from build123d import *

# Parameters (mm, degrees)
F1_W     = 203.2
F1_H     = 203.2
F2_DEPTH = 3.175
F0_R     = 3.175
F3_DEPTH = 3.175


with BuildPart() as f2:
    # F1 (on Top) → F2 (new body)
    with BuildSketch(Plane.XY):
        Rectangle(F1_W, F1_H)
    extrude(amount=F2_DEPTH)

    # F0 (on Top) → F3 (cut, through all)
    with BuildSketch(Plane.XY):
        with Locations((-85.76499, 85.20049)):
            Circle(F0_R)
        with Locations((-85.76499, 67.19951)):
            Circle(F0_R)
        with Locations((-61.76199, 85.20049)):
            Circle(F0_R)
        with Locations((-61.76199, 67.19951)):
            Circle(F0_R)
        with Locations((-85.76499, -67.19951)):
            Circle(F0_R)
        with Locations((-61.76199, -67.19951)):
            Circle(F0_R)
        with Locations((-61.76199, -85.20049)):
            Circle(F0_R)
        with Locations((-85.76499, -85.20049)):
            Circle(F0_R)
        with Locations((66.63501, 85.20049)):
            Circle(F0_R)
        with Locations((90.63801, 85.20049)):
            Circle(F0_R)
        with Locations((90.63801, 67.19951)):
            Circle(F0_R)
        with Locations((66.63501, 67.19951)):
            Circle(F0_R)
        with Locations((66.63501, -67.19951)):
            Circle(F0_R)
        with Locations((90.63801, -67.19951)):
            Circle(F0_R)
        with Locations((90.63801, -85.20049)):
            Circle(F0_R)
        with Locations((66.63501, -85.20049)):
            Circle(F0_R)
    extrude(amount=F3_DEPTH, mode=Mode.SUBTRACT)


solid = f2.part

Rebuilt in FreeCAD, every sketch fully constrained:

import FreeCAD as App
import Part
import Sketcher
from FreeCAD import Vector
Q = App.Units.Quantity


def add_polygon(sketch, points):
    """Adds a closed chain of lines whose ends are joined by coincident constraints."""
    first, n = sketch.GeometryCount, len(points)
    for a, b in zip(points, points[1:] + points[:1]):
        sketch.addGeometry(Part.LineSegment(App.Vector(*a, 0), App.Vector(*b, 0)), False)
    for i in range(n):
        sketch.addConstraint(Sketcher.Constraint("Coincident", first + i, 2, first + (i + 1) % n, 1))

doc = App.newDocument("Part")
params = doc.addObject("Spreadsheet::Sheet", "Params")
for row, (alias, value) in enumerate([
    ("sketch1_width", "8 in"),
    ("pad1_length", "0.125 in"),
    ("sketch2_diameter", "0.25 in"),
], start=1):
    params.set(f"A{row}", alias)
    params.set(f"B{row}", "=" + value)
    params.setAlias(f"B{row}", alias)

body = doc.addObject("PartDesign::Body", "Body")

sketch1 = body.newObject("Sketcher::SketchObject", "Sketch")
sketch1.AttachmentSupport = (doc.getObject("XY_Plane"), [""])
sketch1.MapMode = "FlatFace"
add_polygon(sketch1, [(-101.6, 101.6), (-101.6, -101.6), (101.6, -101.6), (101.6, 101.6)])
sketch1.addConstraint(Sketcher.Constraint("Vertical", 0))
sketch1.addConstraint(Sketcher.Constraint("Horizontal", 1))
sketch1.addConstraint(Sketcher.Constraint("Vertical", 2))
sketch1.addConstraint(Sketcher.Constraint("Horizontal", 3))
sketch1.addConstraint(Sketcher.Constraint("Symmetric", 0, 2, 2, 2, -1, 1))
sketch1.addConstraint(Sketcher.Constraint("Equal", 3, 0))
sketch1.addConstraint(Sketcher.Constraint("DistanceX", 1, 1, 1, 2, Q("8 in")))
sketch1.setExpression("Constraints[10]", "Params.sketch1_width")
pad1 = body.newObject("PartDesign::Pad", "Pad")
pad1.Profile = sketch1
pad1.setExpression("Length", "Params.pad1_length")

sketch2 = body.newObject("Sketcher::SketchObject", "Sketch001")
sketch2.AttachmentSupport = (doc.getObject("XY_Plane"), [""])
sketch2.MapMode = "FlatFace"
sketch2.addGeometry(Part.Circle(Vector(-85.76499, 85.20049, 0), Vector(0, 0, 1), 3.175), False)
sketch2.addGeometry(Part.Circle(Vector(-85.76499, 67.19951, 0), Vector(0, 0, 1), 3.175), False)
sketch2.addGeometry(Part.Circle(Vector(-61.76199, 85.20049, 0), Vector(0, 0, 1), 3.175), False)
sketch2.addGeometry(Part.Circle(Vector(-61.76199, 67.19951, 0), Vector(0, 0, 1), 3.175), False)
sketch2.addGeometry(Part.Circle(Vector(-85.76499, -67.19951, 0), Vector(0, 0, 1), 3.175), False)
sketch2.addGeometry(Part.Circle(Vector(-61.76199, -67.19951, 0), Vector(0, 0, 1), 3.175), False)
sketch2.addGeometry(Part.Circle(Vector(-61.76199, -85.20049, 0), Vector(0, 0, 1), 3.175), False)
sketch2.addGeometry(Part.Circle(Vector(-85.76499, -85.20049, 0), Vector(0, 0, 1), 3.175), False)
sketch2.addGeometry(Part.Circle(Vector(66.63501, 85.20049, 0), Vector(0, 0, 1), 3.175), False)
sketch2.addGeometry(Part.Circle(Vector(90.63801, 85.20049, 0), Vector(0, 0, 1), 3.175), False)
sketch2.addGeometry(Part.Circle(Vector(90.63801, 67.19951, 0), Vector(0, 0, 1), 3.175), False)
sketch2.addGeometry(Part.Circle(Vector(66.63501, 67.19951, 0), Vector(0, 0, 1), 3.175), False)
sketch2.addGeometry(Part.Circle(Vector(66.63501, -67.19951, 0), Vector(0, 0, 1), 3.175), False)
sketch2.addGeometry(Part.Circle(Vector(90.63801, -67.19951, 0), Vector(0, 0, 1), 3.175), False)
sketch2.addGeometry(Part.Circle(Vector(90.63801, -85.20049, 0), Vector(0, 0, 1), 3.175), False)
sketch2.addGeometry(Part.Circle(Vector(66.63501, -85.20049, 0), Vector(0, 0, 1), 3.175), False)
sketch2.addConstraint(Sketcher.Constraint("Equal", 0, 1))
sketch2.addConstraint(Sketcher.Constraint("Equal", 1, 2))
sketch2.addConstraint(Sketcher.Constraint("Equal", 2, 3))
sketch2.addConstraint(Sketcher.Constraint("Equal", 3, 4))
sketch2.addConstraint(Sketcher.Constraint("Equal", 4, 5))
sketch2.addConstraint(Sketcher.Constraint("Equal", 5, 6))
sketch2.addConstraint(Sketcher.Constraint("Equal", 6, 7))
sketch2.addConstraint(Sketcher.Constraint("Equal", 7, 8))
sketch2.addConstraint(Sketcher.Constraint("Equal", 8, 9))
sketch2.addConstraint(Sketcher.Constraint("Equal", 9, 10))
sketch2.addConstraint(Sketcher.Constraint("Equal", 10, 11))
sketch2.addConstraint(Sketcher.Constraint("Equal", 11, 12))
sketch2.addConstraint(Sketcher.Constraint("Equal", 12, 13))
sketch2.addConstraint(Sketcher.Constraint("Equal", 13, 14))
sketch2.addConstraint(Sketcher.Constraint("Equal", 14, 15))
sketch2.addConstraint(Sketcher.Constraint("Symmetric", 1, 3, 4, 3, -1))
sketch2.addConstraint(Sketcher.Constraint("Symmetric", 3, 3, 5, 3, -1))
sketch2.addConstraint(Sketcher.Constraint("Symmetric", 2, 3, 6, 3, -1))
sketch2.addConstraint(Sketcher.Constraint("Symmetric", 0, 3, 7, 3, -1))
sketch2.addConstraint(Sketcher.Constraint("Symmetric", 11, 3, 12, 3, -1))
sketch2.addConstraint(Sketcher.Constraint("Symmetric", 10, 3, 13, 3, -1))
sketch2.addConstraint(Sketcher.Constraint("Symmetric", 9, 3, 14, 3, -1))
sketch2.addConstraint(Sketcher.Constraint("Symmetric", 8, 3, 15, 3, -1))
sketch2.addConstraint(Sketcher.Constraint("Horizontal", 0, 3, 2, 3))
sketch2.addConstraint(Sketcher.Constraint("Horizontal", 1, 3, 3, 3))
sketch2.addConstraint(Sketcher.Constraint("Horizontal", 2, 3, 8, 3))
sketch2.addConstraint(Sketcher.Constraint("Horizontal", 8, 3, 9, 3))
sketch2.addConstraint(Sketcher.Constraint("Horizontal", 3, 3, 10, 3))
sketch2.addConstraint(Sketcher.Constraint("Horizontal", 10, 3, 11, 3))
sketch2.addConstraint(Sketcher.Constraint("Vertical", 0, 3, 1, 3))
sketch2.addConstraint(Sketcher.Constraint("Vertical", 2, 3, 3, 3))
sketch2.addConstraint(Sketcher.Constraint("Vertical", 9, 3, 10, 3))
sketch2.addConstraint(Sketcher.Constraint("Vertical", 8, 3, 11, 3))
sketch2.addConstraint(Sketcher.Constraint("Diameter", 0, Q("0.25 in")))
sketch2.addConstraint(Sketcher.Constraint("DistanceY", 4, 3, 0, 3, Q("6 in")))
sketch2.addConstraint(Sketcher.Constraint("DistanceX", 0, 3, 8, 3, Q("6 in")))
sketch2.addConstraint(Sketcher.Constraint("DistanceX", 2, 3, 9, 3, Q("6 in")))
sketch2.addConstraint(Sketcher.Constraint("DistanceX", 0, 3, 2, 3, Q("0.945 in")))
sketch2.addConstraint(Sketcher.Constraint("DistanceY", 1, 3, 0, 3, Q("0.7087 in")))
sketch2.addConstraint(Sketcher.Constraint("DistanceX", 0, 3, -1, 1, Q("85.76499 mm")))
sketch2.setExpression("Constraints[33]", "Params.sketch2_diameter")
pocket1 = body.newObject("PartDesign::Pocket", "Pocket")
pocket1.Profile = sketch2
pocket1.Type = "ThroughAll"
pocket1.Reversed = True

doc.recompute()
